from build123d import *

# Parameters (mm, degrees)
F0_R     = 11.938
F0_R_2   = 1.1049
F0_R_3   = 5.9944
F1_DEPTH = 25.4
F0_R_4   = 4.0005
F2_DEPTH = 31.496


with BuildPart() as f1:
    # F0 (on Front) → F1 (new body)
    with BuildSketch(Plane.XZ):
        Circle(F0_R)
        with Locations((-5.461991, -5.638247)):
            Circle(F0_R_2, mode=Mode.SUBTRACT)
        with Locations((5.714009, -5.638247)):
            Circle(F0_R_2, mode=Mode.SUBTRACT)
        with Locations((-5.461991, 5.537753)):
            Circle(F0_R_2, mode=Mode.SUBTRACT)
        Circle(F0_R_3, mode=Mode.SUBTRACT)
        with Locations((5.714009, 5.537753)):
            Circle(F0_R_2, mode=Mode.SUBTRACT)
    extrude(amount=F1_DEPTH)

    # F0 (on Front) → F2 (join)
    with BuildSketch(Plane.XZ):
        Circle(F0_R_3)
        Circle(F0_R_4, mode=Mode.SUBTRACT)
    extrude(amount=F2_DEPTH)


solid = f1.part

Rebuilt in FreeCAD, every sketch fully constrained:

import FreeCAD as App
import Part
import Sketcher
from FreeCAD import Vector
Q = App.Units.Quantity

doc = App.newDocument("Part")
params = doc.addObject("Spreadsheet::Sheet", "Params")
for row, (alias, value) in enumerate([
    ("sketch1_diameter", "0.94 in"),
    ("sketch1_diameter2", "0.087 in"),
    ("sketch1_diameter3", "0.472 in"),
    ("pad1_length", "1 in"),
    ("sketch2_diameter", "0.472 in"),
    ("sketch2_diameter2", "0.315 in"),
    ("pad2_length", "1.24 in"),
], start=1):
    params.set(f"A{row}", alias)
    params.set(f"B{row}", "=" + value)
    params.setAlias(f"B{row}", alias)

body = doc.addObject("PartDesign::Body", "Body")

# Sketch on XZ plane
sketch1 = body.newObject("Sketcher::SketchObject", "Sketch")
sketch1.AttachmentSupport = (doc.getObject("XZ_Plane"), [""])
sketch1.MapMode = "FlatFace"
sketch1.addGeometry([
    Part.Circle(Vector(0, 0, 0), Vector(0, 0, 1), 11.9),  # 0
    Part.Circle(Vector(-5.5, -5.6, 0), Vector(0, 0, 1), 1.1),  # 1
    Part.Circle(Vector(5.7, -5.6, 0), Vector(0, 0, 1), 1.1),  # 2
    Part.Circle(Vector(0, 0, 0), Vector(0, 0, 1), 6),  # 3
    Part.Circle(Vector(-5.5, 5.5, 0), Vector(0, 0, 1), 1.1),  # 4
    Part.Circle(Vector(5.7, 5.5, 0), Vector(0, 0, 1), 1.1),  # 5
], False)
sketch1.addConstraint([
    Sketcher.Constraint("Coincident", 0, 3, -1, 1),
    Sketcher.Constraint("Coincident", 3, 3, -1, 1),
    Sketcher.Constraint("Equal", 1, 2),
    Sketcher.Constraint("Equal", 2, 4),
    Sketcher.Constraint("Equal", 4, 5),
    Sketcher.Constraint("Horizontal", 1, 3, 2, 3),
    Sketcher.Constraint("Horizontal", 4, 3, 5, 3),
    Sketcher.Constraint("Vertical", 1, 3, 4, 3),
    Sketcher.Constraint("Vertical", 2, 3, 5, 3),
    Sketcher.Constraint("Diameter", 0, Q("0.94 in")),
    Sketcher.Constraint("Diameter", 1, Q("0.087 in")),
    Sketcher.Constraint("Diameter", 3, Q("0.472 in")),
    Sketcher.Constraint("DistanceX", 1, 3, 2, 3, Q("0.44 in")),
    Sketcher.Constraint("DistanceY", 1, 3, 4, 3, Q("0.44 in")),
    Sketcher.Constraint("DistanceX", 1, 3, -1, 1, 5.461991),
    Sketcher.Constraint("DistanceY", 1, 3, -1, 1, 5.638247),
])
sketch1.setExpression("Constraints[9]", "Params.sketch1_diameter")
sketch1.setExpression("Constraints[10]", "Params.sketch1_diameter2")
sketch1.setExpression("Constraints[11]", "Params.sketch1_diameter3")
pad1 = body.newObject("PartDesign::Pad", "Pad")
pad1.Profile = sketch1
pad1.setExpression("Length", "Params.pad1_length")

# Sketch on XZ plane
sketch2 = body.newObject("Sketcher::SketchObject", "Sketch001")
sketch2.AttachmentSupport = (doc.getObject("XZ_Plane"), [""])
sketch2.MapMode = "FlatFace"
sketch2.addGeometry([
    Part.Circle(Vector(0, 0, 0), Vector(0, 0, 1), 6),
    Part.Circle(Vector(0, 0, 0), Vector(0, 0, 1), 4),
], False)
sketch2.addConstraint([
    Sketcher.Constraint("Coincident", 0, 3, -1, 1),
    Sketcher.Constraint("Coincident", 1, 3, -1, 1),
    Sketcher.Constraint("Diameter", 0, Q("0.472 in")),
    Sketcher.Constraint("Diameter", 1, Q("0.315 in")),
])
sketch2.setExpression("Constraints[2]", "Params.sketch2_diameter")
sketch2.setExpression("Constraints[3]", "Params.sketch2_diameter2")
pad2 = body.newObject("PartDesign::Pad", "Pad001")
pad2.Profile = sketch2
pad2.setExpression("Length", "Params.pad2_length")

doc.recompute()
